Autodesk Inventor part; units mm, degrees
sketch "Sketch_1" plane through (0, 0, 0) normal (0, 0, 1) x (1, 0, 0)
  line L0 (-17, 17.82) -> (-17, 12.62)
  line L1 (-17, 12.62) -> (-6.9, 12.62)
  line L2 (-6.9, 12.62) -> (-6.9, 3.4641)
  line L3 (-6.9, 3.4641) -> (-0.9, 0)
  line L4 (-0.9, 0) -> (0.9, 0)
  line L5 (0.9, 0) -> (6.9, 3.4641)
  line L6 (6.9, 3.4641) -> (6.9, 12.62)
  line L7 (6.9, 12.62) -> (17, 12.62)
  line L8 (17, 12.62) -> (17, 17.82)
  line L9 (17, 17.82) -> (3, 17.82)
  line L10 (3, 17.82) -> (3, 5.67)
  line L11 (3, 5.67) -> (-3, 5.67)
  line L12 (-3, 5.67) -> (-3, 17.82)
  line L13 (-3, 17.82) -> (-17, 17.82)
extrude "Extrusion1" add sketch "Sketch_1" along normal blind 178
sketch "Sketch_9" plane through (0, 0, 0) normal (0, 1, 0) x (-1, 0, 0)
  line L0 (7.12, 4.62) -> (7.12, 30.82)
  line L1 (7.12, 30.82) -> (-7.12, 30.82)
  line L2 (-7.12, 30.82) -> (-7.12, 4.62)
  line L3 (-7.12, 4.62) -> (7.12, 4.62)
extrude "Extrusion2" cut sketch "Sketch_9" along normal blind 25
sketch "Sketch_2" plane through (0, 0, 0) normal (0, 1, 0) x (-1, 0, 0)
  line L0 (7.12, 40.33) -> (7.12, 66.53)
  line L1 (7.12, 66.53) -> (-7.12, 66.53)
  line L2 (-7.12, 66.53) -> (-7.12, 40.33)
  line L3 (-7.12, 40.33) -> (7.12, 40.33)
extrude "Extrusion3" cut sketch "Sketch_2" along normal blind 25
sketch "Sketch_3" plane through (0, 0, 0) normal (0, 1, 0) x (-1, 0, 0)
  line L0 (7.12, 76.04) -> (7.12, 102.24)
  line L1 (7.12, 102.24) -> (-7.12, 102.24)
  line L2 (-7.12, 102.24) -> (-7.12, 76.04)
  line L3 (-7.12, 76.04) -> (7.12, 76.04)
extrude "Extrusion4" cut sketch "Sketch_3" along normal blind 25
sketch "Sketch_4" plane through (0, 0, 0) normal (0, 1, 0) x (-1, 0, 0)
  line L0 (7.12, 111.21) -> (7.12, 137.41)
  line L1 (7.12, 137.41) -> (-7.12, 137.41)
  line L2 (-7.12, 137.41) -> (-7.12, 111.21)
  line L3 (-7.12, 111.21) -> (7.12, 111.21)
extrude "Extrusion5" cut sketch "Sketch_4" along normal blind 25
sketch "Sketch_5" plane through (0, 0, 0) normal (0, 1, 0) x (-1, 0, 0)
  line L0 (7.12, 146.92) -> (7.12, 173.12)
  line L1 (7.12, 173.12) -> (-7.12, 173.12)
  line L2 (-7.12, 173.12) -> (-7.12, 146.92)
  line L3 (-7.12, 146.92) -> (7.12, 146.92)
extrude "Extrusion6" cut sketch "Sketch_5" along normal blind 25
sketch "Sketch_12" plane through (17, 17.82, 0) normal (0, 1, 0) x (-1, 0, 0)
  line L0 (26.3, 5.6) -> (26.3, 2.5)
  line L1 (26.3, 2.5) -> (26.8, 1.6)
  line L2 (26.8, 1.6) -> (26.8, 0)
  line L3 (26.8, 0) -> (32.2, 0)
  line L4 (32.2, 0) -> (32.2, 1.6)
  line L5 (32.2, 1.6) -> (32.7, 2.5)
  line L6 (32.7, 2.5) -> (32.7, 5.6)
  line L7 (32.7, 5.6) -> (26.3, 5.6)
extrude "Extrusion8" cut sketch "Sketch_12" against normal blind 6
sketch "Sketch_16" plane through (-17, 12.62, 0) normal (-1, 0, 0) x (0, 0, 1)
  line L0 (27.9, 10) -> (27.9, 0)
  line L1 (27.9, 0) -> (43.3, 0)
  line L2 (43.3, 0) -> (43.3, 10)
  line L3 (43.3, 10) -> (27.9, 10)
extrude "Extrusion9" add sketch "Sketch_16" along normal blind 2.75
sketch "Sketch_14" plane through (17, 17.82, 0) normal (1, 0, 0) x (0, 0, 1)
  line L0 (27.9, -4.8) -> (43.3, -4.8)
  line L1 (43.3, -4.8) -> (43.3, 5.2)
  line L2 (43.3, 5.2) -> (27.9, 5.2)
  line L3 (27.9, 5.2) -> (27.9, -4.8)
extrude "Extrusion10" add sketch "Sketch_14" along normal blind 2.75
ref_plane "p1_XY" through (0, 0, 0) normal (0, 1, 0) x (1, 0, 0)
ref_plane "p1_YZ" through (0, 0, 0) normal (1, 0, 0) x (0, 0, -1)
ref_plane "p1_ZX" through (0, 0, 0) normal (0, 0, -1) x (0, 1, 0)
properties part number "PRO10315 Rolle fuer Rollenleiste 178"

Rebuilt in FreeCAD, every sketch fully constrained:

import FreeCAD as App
import Part
import Sketcher
from FreeCAD import Vector
Q = App.Units.Quantity

doc = App.newDocument("Part")
body = doc.addObject("PartDesign::Body", "Body")

# Sketch on XY plane
sketch1 = doc.addObject("Sketcher::SketchObject", "Sketch")
body.addObject(sketch1)
sketch1.AttachmentSupport = (doc.XY_Plane, [""])
sketch1.MapMode = "FlatFace"
sketch1.addGeometry([
    Part.LineSegment(Vector(-3, 17.8, 0), Vector(-17, 17.8, 0)),  # 0
    Part.LineSegment(Vector(-17, 17.8, 0), Vector(-17, 12.6, 0)),  # 1
    Part.LineSegment(Vector(-17, 12.6, 0), Vector(-6.9, 12.6, 0)),  # 2
    Part.LineSegment(Vector(-6.9, 12.6, 0), Vector(-6.9, 3.5, 0)),  # 3
    Part.LineSegment(Vector(-6.9, 3.5, 0), Vector(-0.9, 0, 0)),  # 4
    Part.LineSegment(Vector(-0.9, 0, 0), Vector(0.9, 0, 0)),  # 5
    Part.LineSegment(Vector(0.9, 0, 0), Vector(6.9, 3.5, 0)),  # 6
    Part.LineSegment(Vector(6.9, 3.5, 0), Vector(6.9, 12.6, 0)),  # 7
    Part.LineSegment(Vector(6.9, 12.6, 0), Vector(17, 12.6, 0)),  # 8
    Part.LineSegment(Vector(17, 12.6, 0), Vector(17, 17.8, 0)),  # 9
    Part.LineSegment(Vector(17, 17.8, 0), Vector(3, 17.8, 0)),  # 10
    Part.LineSegment(Vector(3, 17.8, 0), Vector(3, 5.7, 0)),  # 11
    Part.LineSegment(Vector(3, 5.7, 0), Vector(-3, 5.7, 0)),  # 12
    Part.LineSegment(Vector(-3, 5.7, 0), Vector(-3, 17.8, 0)),  # 13
], False)
sketch1.addConstraint([
    Sketcher.Constraint("Coincident", 0, 2, 1, 1),
    Sketcher.Constraint("Coincident", 1, 2, 2, 1),
    Sketcher.Constraint("Coincident", 2, 2, 3, 1),
    Sketcher.Constraint("Coincident", 3, 2, 4, 1),
    Sketcher.Constraint("Coincident", 4, 2, 5, 1),
    Sketcher.Constraint("Coincident", 5, 2, 6, 1),
    Sketcher.Constraint("Coincident", 6, 2, 7, 1),
    Sketcher.Constraint("Coincident", 7, 2, 8, 1),
    Sketcher.Constraint("Coincident", 8, 2, 9, 1),
    Sketcher.Constraint("Coincident", 9, 2, 10, 1),
    Sketcher.Constraint("Coincident", 10, 2, 11, 1),
    Sketcher.Constraint("Coincident", 11, 2, 12, 1),
    Sketcher.Constraint("Coincident", 12, 2, 13, 1),
    Sketcher.Constraint("Coincident", 13, 2, 0, 1),
    Sketcher.Constraint("Horizontal", 0),
    Sketcher.Constraint("Vertical", 1),
    Sketcher.Constraint("Horizontal", 2),
    Sketcher.Constraint("Vertical", 3),
    Sketcher.Constraint("Horizontal", 5),
    Sketcher.Constraint("Vertical", 7),
    Sketcher.Constraint("Horizontal", 8),
    Sketcher.Constraint("Vertical", 9),
    Sketcher.Constraint("Horizontal", 10),
    Sketcher.Constraint("Vertical", 11),
    Sketcher.Constraint("Horizontal", 12),
    Sketcher.Constraint("Vertical", 13),
    Sketcher.Constraint("Symmetric", 4, 2, 5, 2, -1, 1),
    Sketcher.Constraint("Symmetric", 3, 2, 6, 2, -2),
    Sketcher.Constraint("Symmetric", 1, 2, 8, 2, -2),
    Sketcher.Constraint("Symmetric", 10, 2, 13, 2, -2),
    Sketcher.Constraint("DistanceX", 0, 2, 0, 1, Q("14 mm")),
    Sketcher.Constraint("DistanceX", 12, 2, 12, 1, Q("6 mm")),
    Sketcher.Constraint("Angle", 4, Q("-30 deg")),
    Sketcher.Constraint("DistanceX", 2, 1, 2, 2, Q("10.1 mm")),
    Sketcher.Constraint("DistanceX", 5, 1, 5, 2, Q("1.8 mm")),
    Sketcher.Constraint("DistanceY", 1, 2, 1, 1, Q("5.2 mm")),
    Sketcher.Constraint("DistanceY", 11, 2, 11, 1, Q("12.15 mm")),
    Sketcher.Constraint("DistanceY", 3, 2, 3, 1, Q("9.156 mm")),
])
pad1 = doc.addObject("PartDesign::Pad", "Pad")
body.addObject(pad1)
pad1.Profile = sketch1
pad1.Length = 178

# Sketch on XZ plane
sketch2 = doc.addObject("Sketcher::SketchObject", "Sketch001")
body.addObject(sketch2)
sketch2.AttachmentSupport = (doc.XZ_Plane, [""])
sketch2.MapMode = "FlatFace"
sketch2.addGeometry([
    Part.LineSegment(Vector(7, 5, 0), Vector(-7, 5, 0)),
    Part.LineSegment(Vector(-7, 5, 0), Vector(-7, 31, 0)),
    Part.LineSegment(Vector(-7, 31, 0), Vector(7, 31, 0)),
    Part.LineSegment(Vector(7, 31, 0), Vector(7, 5, 0)),
], False)
sketch2.addConstraint([
    Sketcher.Constraint("Coincident", 0, 2, 1, 1),
    Sketcher.Constraint("Coincident", 1, 2, 2, 1),
    Sketcher.Constraint("Coincident", 2, 2, 3, 1),
    Sketcher.Constraint("Coincident", 3, 2, 0, 1),
    Sketcher.Constraint("Horizontal", 0),
    Sketcher.Constraint("Vertical", 1),
    Sketcher.Constraint("Horizontal", 2),
    Sketcher.Constraint("Vertical", 3),
    Sketcher.Constraint("DistanceY", 1, 1, 1, 2, Q("26.2 mm")),
    Sketcher.Constraint("DistanceX", 0, 2, 0, 1, Q("14.24 mm")),
    Sketcher.Constraint("DistanceX", 0, 2, -1, 1, Q("7.12 mm")),
    Sketcher.Constraint("DistanceY", -1, 1, 0, 2, Q("4.62 mm")),
])
pocket1 = doc.addObject("PartDesign::Pocket", "Pocket")
body.addObject(pocket1)
pocket1.Profile = sketch2
pocket1.Length = 25

# Sketch on XZ plane
sketch3 = doc.addObject("Sketcher::SketchObject", "Sketch002")
body.addObject(sketch3)
sketch3.AttachmentSupport = (doc.XZ_Plane, [""])
sketch3.MapMode = "FlatFace"
sketch3.addGeometry([
    Part.LineSegment(Vector(7, 40, 0), Vector(-7, 40, 0)),
    Part.LineSegment(Vector(-7, 40, 0), Vector(-7, 67, 0)),
    Part.LineSegment(Vector(-7, 67, 0), Vector(7, 67, 0)),
    Part.LineSegment(Vector(7, 67, 0), Vector(7, 40, 0)),
], False)
sketch3.addConstraint([
    Sketcher.Constraint("Coincident", 0, 2, 1, 1),
    Sketcher.Constraint("Coincident", 1, 2, 2, 1),
    Sketcher.Constraint("Coincident", 2, 2, 3, 1),
    Sketcher.Constraint("Coincident", 3, 2, 0, 1),
    Sketcher.Constraint("Horizontal", 0),
    Sketcher.Constraint("Vertical", 1),
    Sketcher.Constraint("Horizontal", 2),
    Sketcher.Constraint("Vertical", 3),
    Sketcher.Constraint("DistanceY", 1, 1, 1, 2, Q("26.2 mm")),
    Sketcher.Constraint("DistanceX", 0, 2, 0, 1, Q("14.24 mm")),
    Sketcher.Constraint("DistanceX", 0, 2, -1, 1, Q("7.12 mm")),
    Sketcher.Constraint("DistanceY", -1, 1, 0, 2, Q("40.33 mm")),
])
pocket2 = doc.addObject("PartDesign::Pocket", "Pocket001")
body.addObject(pocket2)
pocket2.Profile = sketch3
pocket2.Length = 25

# Sketch on XZ plane
sketch4 = doc.addObject("Sketcher::SketchObject", "Sketch003")
body.addObject(sketch4)
sketch4.AttachmentSupport = (doc.XZ_Plane, [""])
sketch4.MapMode = "FlatFace"
sketch4.addGeometry([
    Part.LineSegment(Vector(7, 76, 0), Vector(-7, 76, 0)),
    Part.LineSegment(Vector(-7, 76, 0), Vector(-7, 102, 0)),
    Part.LineSegment(Vector(-7, 102, 0), Vector(7, 102, 0)),
    Part.LineSegment(Vector(7, 102, 0), Vector(7, 76, 0)),
], False)
sketch4.addConstraint([
    Sketcher.Constraint("Coincident", 0, 2, 1, 1),
    Sketcher.Constraint("Coincident", 1, 2, 2, 1),
    Sketcher.Constraint("Coincident", 2, 2, 3, 1),
    Sketcher.Constraint("Coincident", 3, 2, 0, 1),
    Sketcher.Constraint("Horizontal", 0),
    Sketcher.Constraint("Vertical", 1),
    Sketcher.Constraint("Horizontal", 2),
    Sketcher.Constraint("Vertical", 3),
    Sketcher.Constraint("DistanceY", 1, 1, 1, 2, Q("26.2 mm")),
    Sketcher.Constraint("DistanceX", 0, 2, 0, 1, Q("14.24 mm")),
    Sketcher.Constraint("DistanceX", 0, 2, -1, 1, Q("7.12 mm")),
    Sketcher.Constraint("DistanceY", -1, 1, 0, 2, Q("76.04 mm")),
])
pocket3 = doc.addObject("PartDesign::Pocket", "Pocket002")
body.addObject(pocket3)
pocket3.Profile = sketch4
pocket3.Length = 25

# Sketch on XZ plane
sketch5 = doc.addObject("Sketcher::SketchObject", "Sketch004")
body.addObject(sketch5)
sketch5.AttachmentSupport = (doc.XZ_Plane, [""])
sketch5.MapMode = "FlatFace"
sketch5.addGeometry([
    Part.LineSegment(Vector(7, 111, 0), Vector(-7, 111, 0)),
    Part.LineSegment(Vector(-7, 111, 0), Vector(-7, 137, 0)),
    Part.LineSegment(Vector(-7, 137, 0), Vector(7, 137, 0)),
    Part.LineSegment(Vector(7, 137, 0), Vector(7, 111, 0)),
], False)
sketch5.addConstraint([
    Sketcher.Constraint("Coincident", 0, 2, 1, 1),
    Sketcher.Constraint("Coincident", 1, 2, 2, 1),
    Sketcher.Constraint("Coincident", 2, 2, 3, 1),
    Sketcher.Constraint("Coincident", 3, 2, 0, 1),
    Sketcher.Constraint("Horizontal", 0),
    Sketcher.Constraint("Vertical", 1),
    Sketcher.Constraint("Horizontal", 2),
    Sketcher.Constraint("Vertical", 3),
    Sketcher.Constraint("DistanceY", 1, 1, 1, 2, Q("26.2 mm")),
    Sketcher.Constraint("DistanceX", 0, 2, 0, 1, Q("14.24 mm")),
    Sketcher.Constraint("DistanceX", 0, 2, -1, 1, Q("7.12 mm")),
    Sketcher.Constraint("DistanceY", -1, 1, 0, 2, Q("111.21 mm")),
])
pocket4 = doc.addObject("PartDesign::Pocket", "Pocket003")
body.addObject(pocket4)
pocket4.Profile = sketch5
pocket4.Length = 25

# Sketch on XZ plane
sketch6 = doc.addObject("Sketcher::SketchObject", "Sketch005")
body.addObject(sketch6)
sketch6.AttachmentSupport = (doc.XZ_Plane, [""])
sketch6.MapMode = "FlatFace"
sketch6.addGeometry([
    Part.LineSegment(Vector(7, 147, 0), Vector(-7, 147, 0)),
    Part.LineSegment(Vector(-7, 147, 0), Vector(-7, 173, 0)),
    Part.LineSegment(Vector(-7, 173, 0), Vector(7, 173, 0)),
    Part.LineSegment(Vector(7, 173, 0), Vector(7, 147, 0)),
], False)
sketch6.addConstraint([
    Sketcher.Constraint("Coincident", 0, 2, 1, 1),
    Sketcher.Constraint("Coincident", 1, 2, 2, 1),
    Sketcher.Constraint("Coincident", 2, 2, 3, 1),
    Sketcher.Constraint("Coincident", 3, 2, 0, 1),
    Sketcher.Constraint("Horizontal", 0),
    Sketcher.Constraint("Vertical", 1),
    Sketcher.Constraint("Horizontal", 2),
    Sketcher.Constraint("Vertical", 3),
    Sketcher.Constraint("DistanceY", 1, 1, 1, 2, Q("26.2 mm")),
    Sketcher.Constraint("DistanceX", 0, 2, 0, 1, Q("14.24 mm")),
    Sketcher.Constraint("DistanceX", 0, 2, -1, 1, Q("7.12 mm")),
    Sketcher.Constraint("DistanceY", -1, 1, 0, 2, Q("146.92 mm")),
])
pocket5 = doc.addObject("PartDesign::Pocket", "Pocket004")
body.addObject(pocket5)
pocket5.Profile = sketch6
pocket5.Length = 25

# Sketch on XZ plane
sketch7 = doc.addObject("Sketcher::SketchObject", "Sketch006")
body.addObject(sketch7)
sketch7.AttachmentSupport = (doc.XZ_Plane, [""])
sketch7.MapMode = "FlatFace"
sketch7.AttachmentOffset = App.Placement(Vector(0, 0, -17.82), App.Rotation())
sketch7.addGeometry([
    Part.LineSegment(Vector(-15.7, 5.6, 0), Vector(-9.3, 5.6, 0)),  # 0
    Part.LineSegment(Vector(-9.3, 5.6, 0), Vector(-9.3, 2.5, 0)),  # 1
    Part.LineSegment(Vector(-9.3, 2.5, 0), Vector(-9.8, 1.6, 0)),  # 2
    Part.LineSegment(Vector(-9.8, 1.6, 0), Vector(-9.8, 0, 0)),  # 3
    Part.LineSegment(Vector(-9.8, 0, 0), Vector(-15.2, 0, 0)),  # 4
    Part.LineSegment(Vector(-15.2, 0, 0), Vector(-15.2, 1.6, 0)),  # 5
    Part.LineSegment(Vector(-15.2, 1.6, 0), Vector(-15.7, 2.5, 0)),  # 6
    Part.LineSegment(Vector(-15.7, 2.5, 0), Vector(-15.7, 5.6, 0)),  # 7
], False)
sketch7.addConstraint([
    Sketcher.Constraint("Coincident", 0, 2, 1, 1),
    Sketcher.Constraint("Coincident", 1, 2, 2, 1),
    Sketcher.Constraint("Coincident", 2, 2, 3, 1),
    Sketcher.Constraint("Coincident", 3, 2, 4, 1),
    Sketcher.Constraint("Coincident", 4, 2, 5, 1),
    Sketcher.Constraint("Coincident", 5, 2, 6, 1),
    Sketcher.Constraint("Coincident", 6, 2, 7, 1),
    Sketcher.Constraint("Coincident", 7, 2, 0, 1),
    Sketcher.Constraint("Horizontal", 0),
    Sketcher.Constraint("Vertical", 1),
    Sketcher.Constraint("Vertical", 3),
    Sketcher.Constraint("Horizontal", 4),
    Sketcher.Constraint("Vertical", 5),
    Sketcher.Constraint("Vertical", 7),
    Sketcher.Constraint("PointOnObject", 3, 2, -1),
    Sketcher.Constraint("Horizontal", 2, 2, 5, 2),
    Sketcher.Constraint("Horizontal", 1, 2, 6, 2),
    Sketcher.Constraint("Equal", 2, 6),
    Sketcher.Constraint("DistanceX", 0, 1, 0, 2, Q("6.4 mm")),
    Sketcher.Constraint("DistanceX", 4, 2, 4, 1, Q("5.4 mm")),
    Sketcher.Constraint("DistanceY", 1, 2, 1, 1, Q("3.1 mm")),
    Sketcher.Constraint("DistanceY", 3, 2, 3, 1, Q("1.6 mm")),
    Sketcher.Constraint("DistanceY", 2, 2, 0, 2, Q("4 mm")),
    Sketcher.Constraint("DistanceX", 0, 2, -1, 1, Q("9.3 mm")),
])
pocket6 = doc.addObject("PartDesign::Pocket", "Pocket005")
body.addObject(pocket6)
pocket6.Profile = sketch7
pocket6.Length = 6
pocket6.Reversed = True

# Sketch on YZ plane
sketch8 = doc.addObject("Sketcher::SketchObject", "Sketch007")
body.addObject(sketch8)
sketch8.AttachmentSupport = (doc.YZ_Plane, [""])
sketch8.MapMode = "FlatFace"
sketch8.AttachmentOffset = App.Placement(Vector(0, 0, -17), App.Rotation())
sketch8.addGeometry([
    Part.LineSegment(Vector(23, 43, 0), Vector(23, 28, 0)),
    Part.LineSegment(Vector(23, 28, 0), Vector(13, 28, 0)),
    Part.LineSegment(Vector(13, 28, 0), Vector(13, 43, 0)),
    Part.LineSegment(Vector(13, 43, 0), Vector(23, 43, 0)),
], False)
sketch8.addConstraint([
    Sketcher.Constraint("Coincident", 0, 2, 1, 1),
    Sketcher.Constraint("Coincident", 1, 2, 2, 1),
    Sketcher.Constraint("Coincident", 2, 2, 3, 1),
    Sketcher.Constraint("Coincident", 3, 2, 0, 1),
    Sketcher.Constraint("Vertical", 0),
    Sketcher.Constraint("Horizontal", 1),
    Sketcher.Constraint("Vertical", 2),
    Sketcher.Constraint("Horizontal", 3),
    Sketcher.Constraint("DistanceX", 1, 2, 1, 1, Q("10 mm")),
    Sketcher.Constraint("DistanceY", 0, 2, 0, 1, Q("15.4 mm")),
    Sketcher.Constraint("DistanceY", -1, 1, 0, 2, Q("27.9 mm")),
    Sketcher.Constraint("DistanceX", -1, 1, 0, 2, Q("22.62 mm")),
])
pad2 = doc.addObject("PartDesign::Pad", "Pad001")
body.addObject(pad2)
pad2.Profile = sketch8
pad2.Length = 2.75
pad2.Reversed = True

# Sketch on YZ plane
sketch9 = doc.addObject("Sketcher::SketchObject", "Sketch008")
body.addObject(sketch9)
sketch9.AttachmentSupport = (doc.YZ_Plane, [""])
sketch9.MapMode = "FlatFace"
sketch9.AttachmentOffset = App.Placement(Vector(0, 0, 17), App.Rotation())
sketch9.addGeometry([
    Part.LineSegment(Vector(13, 28, 0), Vector(23, 28, 0)),
    Part.LineSegment(Vector(23, 28, 0), Vector(23, 43, 0)),
    Part.LineSegment(Vector(23, 43, 0), Vector(13, 43, 0)),
    Part.LineSegment(Vector(13, 43, 0), Vector(13, 28, 0)),
], False)
sketch9.addConstraint([
    Sketcher.Constraint("Coincident", 0, 2, 1, 1),
    Sketcher.Constraint("Coincident", 1, 2, 2, 1),
    Sketcher.Constraint("Coincident", 2, 2, 3, 1),
    Sketcher.Constraint("Coincident", 3, 2, 0, 1),
    Sketcher.Constraint("Horizontal", 0),
    Sketcher.Constraint("Vertical", 1),
    Sketcher.Constraint("Horizontal", 2),
    Sketcher.Constraint("Vertical", 3),
    Sketcher.Constraint("DistanceX", 0, 1, 0, 2, Q("10 mm")),
    Sketcher.Constraint("DistanceY", 1, 1, 1, 2, Q("15.4 mm")),
    Sketcher.Constraint("DistanceY", -1, 1, 0, 2, Q("27.9 mm")),
    Sketcher.Constraint("DistanceX", -1, 1, 0, 2, Q("22.62 mm")),
])
pad3 = doc.addObject("PartDesign::Pad", "Pad002")
body.addObject(pad3)
pad3.Profile = sketch9
pad3.Length = 2.75

doc.recompute()
